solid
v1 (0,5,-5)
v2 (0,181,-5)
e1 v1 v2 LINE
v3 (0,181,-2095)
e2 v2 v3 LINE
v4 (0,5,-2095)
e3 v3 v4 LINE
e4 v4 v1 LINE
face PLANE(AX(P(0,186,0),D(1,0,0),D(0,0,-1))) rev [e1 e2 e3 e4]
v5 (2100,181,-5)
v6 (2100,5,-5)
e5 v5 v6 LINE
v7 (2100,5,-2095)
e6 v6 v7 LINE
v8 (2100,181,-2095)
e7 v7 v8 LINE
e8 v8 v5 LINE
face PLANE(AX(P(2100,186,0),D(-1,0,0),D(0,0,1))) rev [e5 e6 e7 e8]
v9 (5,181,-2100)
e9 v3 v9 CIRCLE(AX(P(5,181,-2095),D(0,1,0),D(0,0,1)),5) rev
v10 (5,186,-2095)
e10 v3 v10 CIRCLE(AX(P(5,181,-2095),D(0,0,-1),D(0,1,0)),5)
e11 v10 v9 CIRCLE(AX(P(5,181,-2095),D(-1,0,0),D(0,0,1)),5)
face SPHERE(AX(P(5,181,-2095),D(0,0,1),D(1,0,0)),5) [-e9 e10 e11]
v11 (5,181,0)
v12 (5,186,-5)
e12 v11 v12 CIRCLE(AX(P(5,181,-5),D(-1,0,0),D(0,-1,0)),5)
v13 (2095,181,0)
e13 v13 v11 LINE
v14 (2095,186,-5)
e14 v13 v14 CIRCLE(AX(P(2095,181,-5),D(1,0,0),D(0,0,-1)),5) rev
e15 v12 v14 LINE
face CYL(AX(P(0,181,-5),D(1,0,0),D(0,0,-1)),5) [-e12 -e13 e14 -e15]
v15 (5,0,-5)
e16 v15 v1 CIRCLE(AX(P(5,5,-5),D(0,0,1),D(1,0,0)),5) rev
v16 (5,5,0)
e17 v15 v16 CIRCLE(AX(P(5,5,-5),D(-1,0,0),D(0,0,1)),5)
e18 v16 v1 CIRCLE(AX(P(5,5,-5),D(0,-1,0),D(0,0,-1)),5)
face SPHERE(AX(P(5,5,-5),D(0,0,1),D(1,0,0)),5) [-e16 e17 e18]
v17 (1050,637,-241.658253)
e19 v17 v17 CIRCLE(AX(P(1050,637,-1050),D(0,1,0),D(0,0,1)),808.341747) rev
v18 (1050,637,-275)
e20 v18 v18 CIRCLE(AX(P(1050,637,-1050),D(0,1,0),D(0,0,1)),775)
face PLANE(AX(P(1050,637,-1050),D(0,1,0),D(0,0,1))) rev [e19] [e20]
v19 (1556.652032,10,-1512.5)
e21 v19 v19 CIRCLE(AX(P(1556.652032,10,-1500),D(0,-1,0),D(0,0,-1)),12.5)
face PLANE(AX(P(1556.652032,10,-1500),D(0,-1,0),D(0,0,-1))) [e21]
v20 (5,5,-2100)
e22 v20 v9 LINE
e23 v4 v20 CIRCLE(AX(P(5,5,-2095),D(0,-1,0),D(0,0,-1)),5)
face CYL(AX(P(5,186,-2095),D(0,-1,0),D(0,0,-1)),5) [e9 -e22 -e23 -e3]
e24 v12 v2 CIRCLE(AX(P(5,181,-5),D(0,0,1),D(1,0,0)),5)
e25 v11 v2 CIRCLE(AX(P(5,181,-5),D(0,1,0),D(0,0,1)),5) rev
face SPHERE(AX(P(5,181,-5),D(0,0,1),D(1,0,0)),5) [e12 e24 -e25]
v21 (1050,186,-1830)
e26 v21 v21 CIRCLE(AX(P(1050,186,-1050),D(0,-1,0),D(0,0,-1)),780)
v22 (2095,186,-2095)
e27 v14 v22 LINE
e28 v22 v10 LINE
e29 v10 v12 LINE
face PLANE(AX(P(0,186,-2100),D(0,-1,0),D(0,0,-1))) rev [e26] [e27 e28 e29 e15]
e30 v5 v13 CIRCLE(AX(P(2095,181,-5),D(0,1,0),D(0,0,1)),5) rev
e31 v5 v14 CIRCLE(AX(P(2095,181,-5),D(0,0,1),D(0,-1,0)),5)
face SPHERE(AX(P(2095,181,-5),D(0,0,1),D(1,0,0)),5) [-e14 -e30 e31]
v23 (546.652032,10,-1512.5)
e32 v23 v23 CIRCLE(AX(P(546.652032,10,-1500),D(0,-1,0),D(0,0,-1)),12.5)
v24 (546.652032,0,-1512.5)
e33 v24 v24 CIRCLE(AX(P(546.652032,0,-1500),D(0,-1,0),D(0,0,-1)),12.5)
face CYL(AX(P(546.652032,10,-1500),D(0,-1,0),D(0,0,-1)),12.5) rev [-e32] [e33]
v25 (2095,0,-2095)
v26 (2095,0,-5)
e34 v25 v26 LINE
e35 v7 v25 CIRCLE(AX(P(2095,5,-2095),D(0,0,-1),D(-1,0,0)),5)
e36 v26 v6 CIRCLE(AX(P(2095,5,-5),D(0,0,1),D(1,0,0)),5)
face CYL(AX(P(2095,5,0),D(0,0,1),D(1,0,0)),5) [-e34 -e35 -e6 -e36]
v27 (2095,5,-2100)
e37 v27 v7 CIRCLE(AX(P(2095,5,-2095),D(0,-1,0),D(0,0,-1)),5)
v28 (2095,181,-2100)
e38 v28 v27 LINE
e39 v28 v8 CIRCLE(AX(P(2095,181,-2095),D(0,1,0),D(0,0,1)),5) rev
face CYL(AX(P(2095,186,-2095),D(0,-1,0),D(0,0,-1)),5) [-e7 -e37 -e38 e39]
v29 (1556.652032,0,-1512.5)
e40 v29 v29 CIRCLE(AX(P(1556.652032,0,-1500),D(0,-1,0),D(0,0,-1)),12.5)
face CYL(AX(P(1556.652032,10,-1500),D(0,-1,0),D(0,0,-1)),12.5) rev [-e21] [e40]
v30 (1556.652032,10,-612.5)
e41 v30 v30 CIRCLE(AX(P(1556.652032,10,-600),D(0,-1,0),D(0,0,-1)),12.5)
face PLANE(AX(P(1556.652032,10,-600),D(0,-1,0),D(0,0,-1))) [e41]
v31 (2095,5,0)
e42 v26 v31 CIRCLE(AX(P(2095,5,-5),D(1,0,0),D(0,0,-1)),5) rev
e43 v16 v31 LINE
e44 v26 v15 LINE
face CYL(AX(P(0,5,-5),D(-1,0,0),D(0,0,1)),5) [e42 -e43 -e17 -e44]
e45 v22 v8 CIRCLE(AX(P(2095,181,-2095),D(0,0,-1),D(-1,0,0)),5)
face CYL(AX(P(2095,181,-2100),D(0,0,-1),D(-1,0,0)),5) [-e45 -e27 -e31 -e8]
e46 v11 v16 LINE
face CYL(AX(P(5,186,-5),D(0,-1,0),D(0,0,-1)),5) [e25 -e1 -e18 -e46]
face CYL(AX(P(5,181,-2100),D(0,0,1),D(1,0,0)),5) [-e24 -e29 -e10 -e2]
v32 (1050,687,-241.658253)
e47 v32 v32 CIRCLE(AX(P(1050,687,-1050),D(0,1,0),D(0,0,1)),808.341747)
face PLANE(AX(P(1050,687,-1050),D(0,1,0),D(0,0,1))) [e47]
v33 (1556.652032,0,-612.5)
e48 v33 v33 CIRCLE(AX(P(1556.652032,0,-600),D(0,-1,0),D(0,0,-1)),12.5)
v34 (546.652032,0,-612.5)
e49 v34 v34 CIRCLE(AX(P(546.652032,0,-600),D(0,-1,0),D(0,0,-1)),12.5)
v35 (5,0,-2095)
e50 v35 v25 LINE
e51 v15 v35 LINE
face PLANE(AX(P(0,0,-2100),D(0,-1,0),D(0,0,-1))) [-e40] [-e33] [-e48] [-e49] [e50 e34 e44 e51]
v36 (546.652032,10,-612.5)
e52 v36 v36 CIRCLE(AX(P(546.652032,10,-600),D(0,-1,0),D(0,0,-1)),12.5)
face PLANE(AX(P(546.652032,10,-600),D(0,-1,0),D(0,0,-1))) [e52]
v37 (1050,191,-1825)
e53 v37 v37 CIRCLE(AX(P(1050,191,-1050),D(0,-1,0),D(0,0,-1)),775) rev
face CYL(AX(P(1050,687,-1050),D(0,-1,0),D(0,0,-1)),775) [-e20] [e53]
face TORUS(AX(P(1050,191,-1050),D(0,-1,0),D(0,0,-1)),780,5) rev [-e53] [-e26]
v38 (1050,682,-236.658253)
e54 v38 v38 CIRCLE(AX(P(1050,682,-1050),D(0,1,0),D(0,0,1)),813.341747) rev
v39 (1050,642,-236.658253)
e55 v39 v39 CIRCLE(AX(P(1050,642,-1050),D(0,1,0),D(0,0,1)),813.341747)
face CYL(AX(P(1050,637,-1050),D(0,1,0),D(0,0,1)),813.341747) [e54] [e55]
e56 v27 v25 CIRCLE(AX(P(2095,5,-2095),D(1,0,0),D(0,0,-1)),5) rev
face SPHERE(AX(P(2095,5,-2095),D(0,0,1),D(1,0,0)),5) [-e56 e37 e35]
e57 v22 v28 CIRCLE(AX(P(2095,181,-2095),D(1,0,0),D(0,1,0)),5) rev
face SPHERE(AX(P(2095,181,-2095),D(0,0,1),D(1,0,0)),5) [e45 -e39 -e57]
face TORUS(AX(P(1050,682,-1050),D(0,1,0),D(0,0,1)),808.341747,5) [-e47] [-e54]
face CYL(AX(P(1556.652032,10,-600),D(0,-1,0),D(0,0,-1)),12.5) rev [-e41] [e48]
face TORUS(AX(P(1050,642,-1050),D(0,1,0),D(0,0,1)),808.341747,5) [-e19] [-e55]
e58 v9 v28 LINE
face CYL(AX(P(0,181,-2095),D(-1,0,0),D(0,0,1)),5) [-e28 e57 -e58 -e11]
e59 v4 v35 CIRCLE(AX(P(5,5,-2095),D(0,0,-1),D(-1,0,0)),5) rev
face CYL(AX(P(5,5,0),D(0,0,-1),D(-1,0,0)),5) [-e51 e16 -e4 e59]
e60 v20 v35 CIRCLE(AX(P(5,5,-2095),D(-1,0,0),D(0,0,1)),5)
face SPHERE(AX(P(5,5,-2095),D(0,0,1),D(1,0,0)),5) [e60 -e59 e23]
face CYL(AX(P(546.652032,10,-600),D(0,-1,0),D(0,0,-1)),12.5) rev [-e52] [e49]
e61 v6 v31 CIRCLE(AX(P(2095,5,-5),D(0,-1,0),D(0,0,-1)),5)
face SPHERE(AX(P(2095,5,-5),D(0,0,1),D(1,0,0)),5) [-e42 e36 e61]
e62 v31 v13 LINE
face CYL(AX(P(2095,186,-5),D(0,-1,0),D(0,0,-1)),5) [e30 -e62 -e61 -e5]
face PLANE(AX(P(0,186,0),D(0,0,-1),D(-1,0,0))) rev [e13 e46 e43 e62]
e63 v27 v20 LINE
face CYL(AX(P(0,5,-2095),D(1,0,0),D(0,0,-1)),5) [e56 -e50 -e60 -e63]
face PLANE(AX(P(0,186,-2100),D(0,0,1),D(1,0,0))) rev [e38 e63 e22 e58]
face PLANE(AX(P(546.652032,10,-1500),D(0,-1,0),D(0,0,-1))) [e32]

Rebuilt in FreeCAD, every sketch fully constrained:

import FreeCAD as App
import Part
import Sketcher
from FreeCAD import Vector


def edges_at(feature, points):
    """Names of the edges that pass closest to the given points."""
    edges = feature.Shape.Edges
    near = lambda p: min(range(len(edges)), key=lambda i: edges[i].distToShape(Part.Vertex(*p))[0])
    return sorted({f"Edge{near(p) + 1}" for p in points})

doc = App.newDocument("Part")
body = doc.addObject("PartDesign::Body", "Body")

sketch1 = body.newObject("Sketcher::SketchObject", "Sketch")
sketch1.AttachmentSupport = (doc.getObject("XZ_Plane"), [""])
sketch1.MapMode = "FlatFace"
sketch1.addGeometry([
    Part.LineSegment(Vector(0, -2100, 0), Vector(0, 0, 0)),
    Part.LineSegment(Vector(0, 0, 0), Vector(2100, 0, 0)),
    Part.LineSegment(Vector(2100, 0, 0), Vector(2100, -2100, 0)),
    Part.LineSegment(Vector(2100, -2100, 0), Vector(0, -2100, 0)),
], False)
sketch1.addConstraint([
    Sketcher.Constraint("Coincident", 0, 2, 1, 1),
    Sketcher.Constraint("Coincident", 1, 2, 2, 1),
    Sketcher.Constraint("Coincident", 2, 2, 3, 1),
    Sketcher.Constraint("Coincident", 3, 2, 0, 1),
    Sketcher.Constraint("Vertical", 0),
    Sketcher.Constraint("Horizontal", 1),
    Sketcher.Constraint("Vertical", 2),
    Sketcher.Constraint("Horizontal", 3),
    Sketcher.Constraint("Coincident", 0, 2, -1, 1),
    Sketcher.Constraint("Equal", 3, 0),
    Sketcher.Constraint("DistanceX", 1, 1, 1, 2, 2100.0),
])
pad1 = body.newObject("PartDesign::Pad", "Pad")
pad1.Profile = sketch1
pad1.Length = 186
pad1.Reversed = True

sketch2 = body.newObject("Sketcher::SketchObject", "Sketch001")
sketch2.AttachmentSupport = (doc.getObject("XZ_Plane"), [""])
sketch2.MapMode = "FlatFace"
sketch2.AttachmentOffset = App.Placement(Vector(0, 0, -186), App.Rotation())
sketch2.addGeometry(Part.Circle(Vector(1050, -1050, 0), Vector(0, 0, 1), 775), False)
sketch2.addConstraint([
    Sketcher.Constraint("Diameter", 0, 1550.0),
    Sketcher.Constraint("DistanceX", -1, 1, 0, 3, 1050.0),
    Sketcher.Constraint("DistanceY", 0, 3, -1, 1, 1050.0),
])
pad2 = body.newObject("PartDesign::Pad", "Pad001")
pad2.Profile = sketch2
pad2.Length = 501
pad2.Reversed = True

sketch3 = body.newObject("Sketcher::SketchObject", "Sketch002")
sketch3.AttachmentSupport = (doc.getObject("XZ_Plane"), [""])
sketch3.MapMode = "FlatFace"
sketch3.AttachmentOffset = App.Placement(Vector(0, 0, -687), App.Rotation())
sketch3.addGeometry(Part.Circle(Vector(1050, -1050, 0), Vector(0, 0, 1), 813), False)
sketch3.addConstraint([
    Sketcher.Constraint("DistanceX", -1, 1, 0, 3, 1050.0),
    Sketcher.Constraint("DistanceY", 0, 3, -1, 1, 1050.0),
    Sketcher.Constraint("Diameter", 0, 1626.683494),
])
pad3 = body.newObject("PartDesign::Pad", "Pad002")
pad3.Profile = sketch3
pad3.Length = 50

sketch4 = body.newObject("Sketcher::SketchObject", "Sketch003")
sketch4.AttachmentSupport = (doc.getObject("XZ_Plane"), [""])
sketch4.MapMode = "FlatFace"
sketch4.addGeometry([
    Part.Circle(Vector(547, -600, 0), Vector(0, 0, 1), 12),
    Part.Circle(Vector(1557, -600, 0), Vector(0, 0, 1), 12),
    Part.Circle(Vector(547, -1500, 0), Vector(0, 0, 1), 12),
    Part.Circle(Vector(1557, -1500, 0), Vector(0, 0, 1), 12),
], False)
sketch4.addConstraint([
    Sketcher.Constraint("Equal", 0, 1),
    Sketcher.Constraint("Equal", 1, 2),
    Sketcher.Constraint("Equal", 2, 3),
    Sketcher.Constraint("Horizontal", 0, 3, 1, 3),
    Sketcher.Constraint("Horizontal", 2, 3, 3, 3),
    Sketcher.Constraint("Vertical", 0, 3, 2, 3),
    Sketcher.Constraint("Vertical", 1, 3, 3, 3),
    Sketcher.Constraint("Diameter", 0, 25.0),
    Sketcher.Constraint("DistanceY", 0, 3, -1, 1, 600.0),
    Sketcher.Constraint("DistanceY", 2, 3, -1, 1, 1500.0),
    Sketcher.Constraint("DistanceX", 0, 3, 1, 3, 1010.0),
    Sketcher.Constraint("DistanceX", -1, 1, 0, 3, 546.652032),
])
pocket1 = body.newObject("PartDesign::Pocket", "Pocket")
pocket1.Profile = sketch4
pocket1.Length = 10
doc.recompute()

fillet = body.newObject("PartDesign::Fillet", "Fillet")
fillet.Base = (pocket1, edges_at(pocket1, [
    (2100, 186, -1050),
    (1050, 186, -2100),
    (1050, 186, -275),
    (1050, 687, -1863.342),
    (1050, 637, -1863.342),
    (0, 186, -1050),
    (1050, 0, -2100),
    (2100, 0, -1050),
    (1050, 0, 0),
    (0, 0, -1050),
    (1050, 186, 0),
    (0, 93, -2100),
    (2100, 93, -2100),
    (2100, 93, 0),
    (0, 93, 0),
]))
fillet.Radius = 5

doc.recompute()
